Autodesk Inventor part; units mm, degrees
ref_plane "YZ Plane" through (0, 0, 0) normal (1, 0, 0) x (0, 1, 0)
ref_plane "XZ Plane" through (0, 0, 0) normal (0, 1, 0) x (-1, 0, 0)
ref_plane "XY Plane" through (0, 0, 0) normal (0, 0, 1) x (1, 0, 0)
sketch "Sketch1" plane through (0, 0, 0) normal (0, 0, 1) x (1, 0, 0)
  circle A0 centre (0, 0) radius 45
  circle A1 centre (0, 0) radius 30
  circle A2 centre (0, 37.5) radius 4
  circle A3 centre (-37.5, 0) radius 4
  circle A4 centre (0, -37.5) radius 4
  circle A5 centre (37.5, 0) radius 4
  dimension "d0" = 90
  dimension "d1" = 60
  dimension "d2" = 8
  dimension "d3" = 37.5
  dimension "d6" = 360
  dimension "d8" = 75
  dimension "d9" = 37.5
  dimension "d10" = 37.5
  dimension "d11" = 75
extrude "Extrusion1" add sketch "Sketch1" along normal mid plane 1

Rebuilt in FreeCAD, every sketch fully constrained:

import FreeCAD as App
import Part
import Sketcher

V = App.Vector

doc = App.newDocument("Part")
body = doc.addObject("PartDesign::Body", "Body")

# Sketch on XY plane
sketch1 = body.newObject("Sketcher::SketchObject", "Sketch")
sketch1.AttachmentSupport = (doc.getObject("XY_Plane"), [""])
sketch1.MapMode = "FlatFace"
sketch1.addGeometry(Part.Circle(V(0, 0, 0), V(0, 0, 1), 45), False)
sketch1.addGeometry(Part.Circle(V(0, -37.5, 0), V(0, 0, 1), 4), False)
sketch1.addGeometry(Part.Circle(V(-37.5, 0, 0), V(0, 0, 1), 4), False)
sketch1.addGeometry(Part.Circle(V(0, 0, 0), V(0, 0, 1), 30), False)
sketch1.addGeometry(Part.Circle(V(37.5, 0, 0), V(0, 0, 1), 4), False)
sketch1.addGeometry(Part.Circle(V(0, 37.5, 0), V(0, 0, 1), 4), False)
sketch1.addConstraint(Sketcher.Constraint("Coincident", 0, 3, -1, 1))
sketch1.addConstraint(Sketcher.Constraint("Coincident", 3, 3, -1, 1))
sketch1.addConstraint(Sketcher.Constraint("Equal", 1, 2))
sketch1.addConstraint(Sketcher.Constraint("Equal", 2, 4))
sketch1.addConstraint(Sketcher.Constraint("Equal", 4, 5))
sketch1.addConstraint(Sketcher.Constraint("Symmetric", 2, 3, 4, 3, -1, 1))
sketch1.addConstraint(Sketcher.Constraint("Symmetric", 1, 3, 5, 3, -1, 1))
sketch1.addConstraint(Sketcher.Constraint("PointOnObject", 1, 3, -2))
sketch1.addConstraint(Sketcher.Constraint("PointOnObject", 2, 3, -1))
sketch1.addConstraint(Sketcher.Constraint("Diameter", 0, 90.0))
sketch1.addConstraint(Sketcher.Constraint("Diameter", 1, 8.0))
sketch1.addConstraint(Sketcher.Constraint("Diameter", 3, 60.0))
sketch1.addConstraint(Sketcher.Constraint("DistanceX", 2, 3, 4, 3, 75.0))
sketch1.addConstraint(Sketcher.Constraint("DistanceY", 1, 3, 5, 3, 75.0))
pad1 = body.newObject("PartDesign::Pad", "Pad")
pad1.Profile = sketch1
pad1.Length = 1
pad1.Midplane = True

doc.recompute()
